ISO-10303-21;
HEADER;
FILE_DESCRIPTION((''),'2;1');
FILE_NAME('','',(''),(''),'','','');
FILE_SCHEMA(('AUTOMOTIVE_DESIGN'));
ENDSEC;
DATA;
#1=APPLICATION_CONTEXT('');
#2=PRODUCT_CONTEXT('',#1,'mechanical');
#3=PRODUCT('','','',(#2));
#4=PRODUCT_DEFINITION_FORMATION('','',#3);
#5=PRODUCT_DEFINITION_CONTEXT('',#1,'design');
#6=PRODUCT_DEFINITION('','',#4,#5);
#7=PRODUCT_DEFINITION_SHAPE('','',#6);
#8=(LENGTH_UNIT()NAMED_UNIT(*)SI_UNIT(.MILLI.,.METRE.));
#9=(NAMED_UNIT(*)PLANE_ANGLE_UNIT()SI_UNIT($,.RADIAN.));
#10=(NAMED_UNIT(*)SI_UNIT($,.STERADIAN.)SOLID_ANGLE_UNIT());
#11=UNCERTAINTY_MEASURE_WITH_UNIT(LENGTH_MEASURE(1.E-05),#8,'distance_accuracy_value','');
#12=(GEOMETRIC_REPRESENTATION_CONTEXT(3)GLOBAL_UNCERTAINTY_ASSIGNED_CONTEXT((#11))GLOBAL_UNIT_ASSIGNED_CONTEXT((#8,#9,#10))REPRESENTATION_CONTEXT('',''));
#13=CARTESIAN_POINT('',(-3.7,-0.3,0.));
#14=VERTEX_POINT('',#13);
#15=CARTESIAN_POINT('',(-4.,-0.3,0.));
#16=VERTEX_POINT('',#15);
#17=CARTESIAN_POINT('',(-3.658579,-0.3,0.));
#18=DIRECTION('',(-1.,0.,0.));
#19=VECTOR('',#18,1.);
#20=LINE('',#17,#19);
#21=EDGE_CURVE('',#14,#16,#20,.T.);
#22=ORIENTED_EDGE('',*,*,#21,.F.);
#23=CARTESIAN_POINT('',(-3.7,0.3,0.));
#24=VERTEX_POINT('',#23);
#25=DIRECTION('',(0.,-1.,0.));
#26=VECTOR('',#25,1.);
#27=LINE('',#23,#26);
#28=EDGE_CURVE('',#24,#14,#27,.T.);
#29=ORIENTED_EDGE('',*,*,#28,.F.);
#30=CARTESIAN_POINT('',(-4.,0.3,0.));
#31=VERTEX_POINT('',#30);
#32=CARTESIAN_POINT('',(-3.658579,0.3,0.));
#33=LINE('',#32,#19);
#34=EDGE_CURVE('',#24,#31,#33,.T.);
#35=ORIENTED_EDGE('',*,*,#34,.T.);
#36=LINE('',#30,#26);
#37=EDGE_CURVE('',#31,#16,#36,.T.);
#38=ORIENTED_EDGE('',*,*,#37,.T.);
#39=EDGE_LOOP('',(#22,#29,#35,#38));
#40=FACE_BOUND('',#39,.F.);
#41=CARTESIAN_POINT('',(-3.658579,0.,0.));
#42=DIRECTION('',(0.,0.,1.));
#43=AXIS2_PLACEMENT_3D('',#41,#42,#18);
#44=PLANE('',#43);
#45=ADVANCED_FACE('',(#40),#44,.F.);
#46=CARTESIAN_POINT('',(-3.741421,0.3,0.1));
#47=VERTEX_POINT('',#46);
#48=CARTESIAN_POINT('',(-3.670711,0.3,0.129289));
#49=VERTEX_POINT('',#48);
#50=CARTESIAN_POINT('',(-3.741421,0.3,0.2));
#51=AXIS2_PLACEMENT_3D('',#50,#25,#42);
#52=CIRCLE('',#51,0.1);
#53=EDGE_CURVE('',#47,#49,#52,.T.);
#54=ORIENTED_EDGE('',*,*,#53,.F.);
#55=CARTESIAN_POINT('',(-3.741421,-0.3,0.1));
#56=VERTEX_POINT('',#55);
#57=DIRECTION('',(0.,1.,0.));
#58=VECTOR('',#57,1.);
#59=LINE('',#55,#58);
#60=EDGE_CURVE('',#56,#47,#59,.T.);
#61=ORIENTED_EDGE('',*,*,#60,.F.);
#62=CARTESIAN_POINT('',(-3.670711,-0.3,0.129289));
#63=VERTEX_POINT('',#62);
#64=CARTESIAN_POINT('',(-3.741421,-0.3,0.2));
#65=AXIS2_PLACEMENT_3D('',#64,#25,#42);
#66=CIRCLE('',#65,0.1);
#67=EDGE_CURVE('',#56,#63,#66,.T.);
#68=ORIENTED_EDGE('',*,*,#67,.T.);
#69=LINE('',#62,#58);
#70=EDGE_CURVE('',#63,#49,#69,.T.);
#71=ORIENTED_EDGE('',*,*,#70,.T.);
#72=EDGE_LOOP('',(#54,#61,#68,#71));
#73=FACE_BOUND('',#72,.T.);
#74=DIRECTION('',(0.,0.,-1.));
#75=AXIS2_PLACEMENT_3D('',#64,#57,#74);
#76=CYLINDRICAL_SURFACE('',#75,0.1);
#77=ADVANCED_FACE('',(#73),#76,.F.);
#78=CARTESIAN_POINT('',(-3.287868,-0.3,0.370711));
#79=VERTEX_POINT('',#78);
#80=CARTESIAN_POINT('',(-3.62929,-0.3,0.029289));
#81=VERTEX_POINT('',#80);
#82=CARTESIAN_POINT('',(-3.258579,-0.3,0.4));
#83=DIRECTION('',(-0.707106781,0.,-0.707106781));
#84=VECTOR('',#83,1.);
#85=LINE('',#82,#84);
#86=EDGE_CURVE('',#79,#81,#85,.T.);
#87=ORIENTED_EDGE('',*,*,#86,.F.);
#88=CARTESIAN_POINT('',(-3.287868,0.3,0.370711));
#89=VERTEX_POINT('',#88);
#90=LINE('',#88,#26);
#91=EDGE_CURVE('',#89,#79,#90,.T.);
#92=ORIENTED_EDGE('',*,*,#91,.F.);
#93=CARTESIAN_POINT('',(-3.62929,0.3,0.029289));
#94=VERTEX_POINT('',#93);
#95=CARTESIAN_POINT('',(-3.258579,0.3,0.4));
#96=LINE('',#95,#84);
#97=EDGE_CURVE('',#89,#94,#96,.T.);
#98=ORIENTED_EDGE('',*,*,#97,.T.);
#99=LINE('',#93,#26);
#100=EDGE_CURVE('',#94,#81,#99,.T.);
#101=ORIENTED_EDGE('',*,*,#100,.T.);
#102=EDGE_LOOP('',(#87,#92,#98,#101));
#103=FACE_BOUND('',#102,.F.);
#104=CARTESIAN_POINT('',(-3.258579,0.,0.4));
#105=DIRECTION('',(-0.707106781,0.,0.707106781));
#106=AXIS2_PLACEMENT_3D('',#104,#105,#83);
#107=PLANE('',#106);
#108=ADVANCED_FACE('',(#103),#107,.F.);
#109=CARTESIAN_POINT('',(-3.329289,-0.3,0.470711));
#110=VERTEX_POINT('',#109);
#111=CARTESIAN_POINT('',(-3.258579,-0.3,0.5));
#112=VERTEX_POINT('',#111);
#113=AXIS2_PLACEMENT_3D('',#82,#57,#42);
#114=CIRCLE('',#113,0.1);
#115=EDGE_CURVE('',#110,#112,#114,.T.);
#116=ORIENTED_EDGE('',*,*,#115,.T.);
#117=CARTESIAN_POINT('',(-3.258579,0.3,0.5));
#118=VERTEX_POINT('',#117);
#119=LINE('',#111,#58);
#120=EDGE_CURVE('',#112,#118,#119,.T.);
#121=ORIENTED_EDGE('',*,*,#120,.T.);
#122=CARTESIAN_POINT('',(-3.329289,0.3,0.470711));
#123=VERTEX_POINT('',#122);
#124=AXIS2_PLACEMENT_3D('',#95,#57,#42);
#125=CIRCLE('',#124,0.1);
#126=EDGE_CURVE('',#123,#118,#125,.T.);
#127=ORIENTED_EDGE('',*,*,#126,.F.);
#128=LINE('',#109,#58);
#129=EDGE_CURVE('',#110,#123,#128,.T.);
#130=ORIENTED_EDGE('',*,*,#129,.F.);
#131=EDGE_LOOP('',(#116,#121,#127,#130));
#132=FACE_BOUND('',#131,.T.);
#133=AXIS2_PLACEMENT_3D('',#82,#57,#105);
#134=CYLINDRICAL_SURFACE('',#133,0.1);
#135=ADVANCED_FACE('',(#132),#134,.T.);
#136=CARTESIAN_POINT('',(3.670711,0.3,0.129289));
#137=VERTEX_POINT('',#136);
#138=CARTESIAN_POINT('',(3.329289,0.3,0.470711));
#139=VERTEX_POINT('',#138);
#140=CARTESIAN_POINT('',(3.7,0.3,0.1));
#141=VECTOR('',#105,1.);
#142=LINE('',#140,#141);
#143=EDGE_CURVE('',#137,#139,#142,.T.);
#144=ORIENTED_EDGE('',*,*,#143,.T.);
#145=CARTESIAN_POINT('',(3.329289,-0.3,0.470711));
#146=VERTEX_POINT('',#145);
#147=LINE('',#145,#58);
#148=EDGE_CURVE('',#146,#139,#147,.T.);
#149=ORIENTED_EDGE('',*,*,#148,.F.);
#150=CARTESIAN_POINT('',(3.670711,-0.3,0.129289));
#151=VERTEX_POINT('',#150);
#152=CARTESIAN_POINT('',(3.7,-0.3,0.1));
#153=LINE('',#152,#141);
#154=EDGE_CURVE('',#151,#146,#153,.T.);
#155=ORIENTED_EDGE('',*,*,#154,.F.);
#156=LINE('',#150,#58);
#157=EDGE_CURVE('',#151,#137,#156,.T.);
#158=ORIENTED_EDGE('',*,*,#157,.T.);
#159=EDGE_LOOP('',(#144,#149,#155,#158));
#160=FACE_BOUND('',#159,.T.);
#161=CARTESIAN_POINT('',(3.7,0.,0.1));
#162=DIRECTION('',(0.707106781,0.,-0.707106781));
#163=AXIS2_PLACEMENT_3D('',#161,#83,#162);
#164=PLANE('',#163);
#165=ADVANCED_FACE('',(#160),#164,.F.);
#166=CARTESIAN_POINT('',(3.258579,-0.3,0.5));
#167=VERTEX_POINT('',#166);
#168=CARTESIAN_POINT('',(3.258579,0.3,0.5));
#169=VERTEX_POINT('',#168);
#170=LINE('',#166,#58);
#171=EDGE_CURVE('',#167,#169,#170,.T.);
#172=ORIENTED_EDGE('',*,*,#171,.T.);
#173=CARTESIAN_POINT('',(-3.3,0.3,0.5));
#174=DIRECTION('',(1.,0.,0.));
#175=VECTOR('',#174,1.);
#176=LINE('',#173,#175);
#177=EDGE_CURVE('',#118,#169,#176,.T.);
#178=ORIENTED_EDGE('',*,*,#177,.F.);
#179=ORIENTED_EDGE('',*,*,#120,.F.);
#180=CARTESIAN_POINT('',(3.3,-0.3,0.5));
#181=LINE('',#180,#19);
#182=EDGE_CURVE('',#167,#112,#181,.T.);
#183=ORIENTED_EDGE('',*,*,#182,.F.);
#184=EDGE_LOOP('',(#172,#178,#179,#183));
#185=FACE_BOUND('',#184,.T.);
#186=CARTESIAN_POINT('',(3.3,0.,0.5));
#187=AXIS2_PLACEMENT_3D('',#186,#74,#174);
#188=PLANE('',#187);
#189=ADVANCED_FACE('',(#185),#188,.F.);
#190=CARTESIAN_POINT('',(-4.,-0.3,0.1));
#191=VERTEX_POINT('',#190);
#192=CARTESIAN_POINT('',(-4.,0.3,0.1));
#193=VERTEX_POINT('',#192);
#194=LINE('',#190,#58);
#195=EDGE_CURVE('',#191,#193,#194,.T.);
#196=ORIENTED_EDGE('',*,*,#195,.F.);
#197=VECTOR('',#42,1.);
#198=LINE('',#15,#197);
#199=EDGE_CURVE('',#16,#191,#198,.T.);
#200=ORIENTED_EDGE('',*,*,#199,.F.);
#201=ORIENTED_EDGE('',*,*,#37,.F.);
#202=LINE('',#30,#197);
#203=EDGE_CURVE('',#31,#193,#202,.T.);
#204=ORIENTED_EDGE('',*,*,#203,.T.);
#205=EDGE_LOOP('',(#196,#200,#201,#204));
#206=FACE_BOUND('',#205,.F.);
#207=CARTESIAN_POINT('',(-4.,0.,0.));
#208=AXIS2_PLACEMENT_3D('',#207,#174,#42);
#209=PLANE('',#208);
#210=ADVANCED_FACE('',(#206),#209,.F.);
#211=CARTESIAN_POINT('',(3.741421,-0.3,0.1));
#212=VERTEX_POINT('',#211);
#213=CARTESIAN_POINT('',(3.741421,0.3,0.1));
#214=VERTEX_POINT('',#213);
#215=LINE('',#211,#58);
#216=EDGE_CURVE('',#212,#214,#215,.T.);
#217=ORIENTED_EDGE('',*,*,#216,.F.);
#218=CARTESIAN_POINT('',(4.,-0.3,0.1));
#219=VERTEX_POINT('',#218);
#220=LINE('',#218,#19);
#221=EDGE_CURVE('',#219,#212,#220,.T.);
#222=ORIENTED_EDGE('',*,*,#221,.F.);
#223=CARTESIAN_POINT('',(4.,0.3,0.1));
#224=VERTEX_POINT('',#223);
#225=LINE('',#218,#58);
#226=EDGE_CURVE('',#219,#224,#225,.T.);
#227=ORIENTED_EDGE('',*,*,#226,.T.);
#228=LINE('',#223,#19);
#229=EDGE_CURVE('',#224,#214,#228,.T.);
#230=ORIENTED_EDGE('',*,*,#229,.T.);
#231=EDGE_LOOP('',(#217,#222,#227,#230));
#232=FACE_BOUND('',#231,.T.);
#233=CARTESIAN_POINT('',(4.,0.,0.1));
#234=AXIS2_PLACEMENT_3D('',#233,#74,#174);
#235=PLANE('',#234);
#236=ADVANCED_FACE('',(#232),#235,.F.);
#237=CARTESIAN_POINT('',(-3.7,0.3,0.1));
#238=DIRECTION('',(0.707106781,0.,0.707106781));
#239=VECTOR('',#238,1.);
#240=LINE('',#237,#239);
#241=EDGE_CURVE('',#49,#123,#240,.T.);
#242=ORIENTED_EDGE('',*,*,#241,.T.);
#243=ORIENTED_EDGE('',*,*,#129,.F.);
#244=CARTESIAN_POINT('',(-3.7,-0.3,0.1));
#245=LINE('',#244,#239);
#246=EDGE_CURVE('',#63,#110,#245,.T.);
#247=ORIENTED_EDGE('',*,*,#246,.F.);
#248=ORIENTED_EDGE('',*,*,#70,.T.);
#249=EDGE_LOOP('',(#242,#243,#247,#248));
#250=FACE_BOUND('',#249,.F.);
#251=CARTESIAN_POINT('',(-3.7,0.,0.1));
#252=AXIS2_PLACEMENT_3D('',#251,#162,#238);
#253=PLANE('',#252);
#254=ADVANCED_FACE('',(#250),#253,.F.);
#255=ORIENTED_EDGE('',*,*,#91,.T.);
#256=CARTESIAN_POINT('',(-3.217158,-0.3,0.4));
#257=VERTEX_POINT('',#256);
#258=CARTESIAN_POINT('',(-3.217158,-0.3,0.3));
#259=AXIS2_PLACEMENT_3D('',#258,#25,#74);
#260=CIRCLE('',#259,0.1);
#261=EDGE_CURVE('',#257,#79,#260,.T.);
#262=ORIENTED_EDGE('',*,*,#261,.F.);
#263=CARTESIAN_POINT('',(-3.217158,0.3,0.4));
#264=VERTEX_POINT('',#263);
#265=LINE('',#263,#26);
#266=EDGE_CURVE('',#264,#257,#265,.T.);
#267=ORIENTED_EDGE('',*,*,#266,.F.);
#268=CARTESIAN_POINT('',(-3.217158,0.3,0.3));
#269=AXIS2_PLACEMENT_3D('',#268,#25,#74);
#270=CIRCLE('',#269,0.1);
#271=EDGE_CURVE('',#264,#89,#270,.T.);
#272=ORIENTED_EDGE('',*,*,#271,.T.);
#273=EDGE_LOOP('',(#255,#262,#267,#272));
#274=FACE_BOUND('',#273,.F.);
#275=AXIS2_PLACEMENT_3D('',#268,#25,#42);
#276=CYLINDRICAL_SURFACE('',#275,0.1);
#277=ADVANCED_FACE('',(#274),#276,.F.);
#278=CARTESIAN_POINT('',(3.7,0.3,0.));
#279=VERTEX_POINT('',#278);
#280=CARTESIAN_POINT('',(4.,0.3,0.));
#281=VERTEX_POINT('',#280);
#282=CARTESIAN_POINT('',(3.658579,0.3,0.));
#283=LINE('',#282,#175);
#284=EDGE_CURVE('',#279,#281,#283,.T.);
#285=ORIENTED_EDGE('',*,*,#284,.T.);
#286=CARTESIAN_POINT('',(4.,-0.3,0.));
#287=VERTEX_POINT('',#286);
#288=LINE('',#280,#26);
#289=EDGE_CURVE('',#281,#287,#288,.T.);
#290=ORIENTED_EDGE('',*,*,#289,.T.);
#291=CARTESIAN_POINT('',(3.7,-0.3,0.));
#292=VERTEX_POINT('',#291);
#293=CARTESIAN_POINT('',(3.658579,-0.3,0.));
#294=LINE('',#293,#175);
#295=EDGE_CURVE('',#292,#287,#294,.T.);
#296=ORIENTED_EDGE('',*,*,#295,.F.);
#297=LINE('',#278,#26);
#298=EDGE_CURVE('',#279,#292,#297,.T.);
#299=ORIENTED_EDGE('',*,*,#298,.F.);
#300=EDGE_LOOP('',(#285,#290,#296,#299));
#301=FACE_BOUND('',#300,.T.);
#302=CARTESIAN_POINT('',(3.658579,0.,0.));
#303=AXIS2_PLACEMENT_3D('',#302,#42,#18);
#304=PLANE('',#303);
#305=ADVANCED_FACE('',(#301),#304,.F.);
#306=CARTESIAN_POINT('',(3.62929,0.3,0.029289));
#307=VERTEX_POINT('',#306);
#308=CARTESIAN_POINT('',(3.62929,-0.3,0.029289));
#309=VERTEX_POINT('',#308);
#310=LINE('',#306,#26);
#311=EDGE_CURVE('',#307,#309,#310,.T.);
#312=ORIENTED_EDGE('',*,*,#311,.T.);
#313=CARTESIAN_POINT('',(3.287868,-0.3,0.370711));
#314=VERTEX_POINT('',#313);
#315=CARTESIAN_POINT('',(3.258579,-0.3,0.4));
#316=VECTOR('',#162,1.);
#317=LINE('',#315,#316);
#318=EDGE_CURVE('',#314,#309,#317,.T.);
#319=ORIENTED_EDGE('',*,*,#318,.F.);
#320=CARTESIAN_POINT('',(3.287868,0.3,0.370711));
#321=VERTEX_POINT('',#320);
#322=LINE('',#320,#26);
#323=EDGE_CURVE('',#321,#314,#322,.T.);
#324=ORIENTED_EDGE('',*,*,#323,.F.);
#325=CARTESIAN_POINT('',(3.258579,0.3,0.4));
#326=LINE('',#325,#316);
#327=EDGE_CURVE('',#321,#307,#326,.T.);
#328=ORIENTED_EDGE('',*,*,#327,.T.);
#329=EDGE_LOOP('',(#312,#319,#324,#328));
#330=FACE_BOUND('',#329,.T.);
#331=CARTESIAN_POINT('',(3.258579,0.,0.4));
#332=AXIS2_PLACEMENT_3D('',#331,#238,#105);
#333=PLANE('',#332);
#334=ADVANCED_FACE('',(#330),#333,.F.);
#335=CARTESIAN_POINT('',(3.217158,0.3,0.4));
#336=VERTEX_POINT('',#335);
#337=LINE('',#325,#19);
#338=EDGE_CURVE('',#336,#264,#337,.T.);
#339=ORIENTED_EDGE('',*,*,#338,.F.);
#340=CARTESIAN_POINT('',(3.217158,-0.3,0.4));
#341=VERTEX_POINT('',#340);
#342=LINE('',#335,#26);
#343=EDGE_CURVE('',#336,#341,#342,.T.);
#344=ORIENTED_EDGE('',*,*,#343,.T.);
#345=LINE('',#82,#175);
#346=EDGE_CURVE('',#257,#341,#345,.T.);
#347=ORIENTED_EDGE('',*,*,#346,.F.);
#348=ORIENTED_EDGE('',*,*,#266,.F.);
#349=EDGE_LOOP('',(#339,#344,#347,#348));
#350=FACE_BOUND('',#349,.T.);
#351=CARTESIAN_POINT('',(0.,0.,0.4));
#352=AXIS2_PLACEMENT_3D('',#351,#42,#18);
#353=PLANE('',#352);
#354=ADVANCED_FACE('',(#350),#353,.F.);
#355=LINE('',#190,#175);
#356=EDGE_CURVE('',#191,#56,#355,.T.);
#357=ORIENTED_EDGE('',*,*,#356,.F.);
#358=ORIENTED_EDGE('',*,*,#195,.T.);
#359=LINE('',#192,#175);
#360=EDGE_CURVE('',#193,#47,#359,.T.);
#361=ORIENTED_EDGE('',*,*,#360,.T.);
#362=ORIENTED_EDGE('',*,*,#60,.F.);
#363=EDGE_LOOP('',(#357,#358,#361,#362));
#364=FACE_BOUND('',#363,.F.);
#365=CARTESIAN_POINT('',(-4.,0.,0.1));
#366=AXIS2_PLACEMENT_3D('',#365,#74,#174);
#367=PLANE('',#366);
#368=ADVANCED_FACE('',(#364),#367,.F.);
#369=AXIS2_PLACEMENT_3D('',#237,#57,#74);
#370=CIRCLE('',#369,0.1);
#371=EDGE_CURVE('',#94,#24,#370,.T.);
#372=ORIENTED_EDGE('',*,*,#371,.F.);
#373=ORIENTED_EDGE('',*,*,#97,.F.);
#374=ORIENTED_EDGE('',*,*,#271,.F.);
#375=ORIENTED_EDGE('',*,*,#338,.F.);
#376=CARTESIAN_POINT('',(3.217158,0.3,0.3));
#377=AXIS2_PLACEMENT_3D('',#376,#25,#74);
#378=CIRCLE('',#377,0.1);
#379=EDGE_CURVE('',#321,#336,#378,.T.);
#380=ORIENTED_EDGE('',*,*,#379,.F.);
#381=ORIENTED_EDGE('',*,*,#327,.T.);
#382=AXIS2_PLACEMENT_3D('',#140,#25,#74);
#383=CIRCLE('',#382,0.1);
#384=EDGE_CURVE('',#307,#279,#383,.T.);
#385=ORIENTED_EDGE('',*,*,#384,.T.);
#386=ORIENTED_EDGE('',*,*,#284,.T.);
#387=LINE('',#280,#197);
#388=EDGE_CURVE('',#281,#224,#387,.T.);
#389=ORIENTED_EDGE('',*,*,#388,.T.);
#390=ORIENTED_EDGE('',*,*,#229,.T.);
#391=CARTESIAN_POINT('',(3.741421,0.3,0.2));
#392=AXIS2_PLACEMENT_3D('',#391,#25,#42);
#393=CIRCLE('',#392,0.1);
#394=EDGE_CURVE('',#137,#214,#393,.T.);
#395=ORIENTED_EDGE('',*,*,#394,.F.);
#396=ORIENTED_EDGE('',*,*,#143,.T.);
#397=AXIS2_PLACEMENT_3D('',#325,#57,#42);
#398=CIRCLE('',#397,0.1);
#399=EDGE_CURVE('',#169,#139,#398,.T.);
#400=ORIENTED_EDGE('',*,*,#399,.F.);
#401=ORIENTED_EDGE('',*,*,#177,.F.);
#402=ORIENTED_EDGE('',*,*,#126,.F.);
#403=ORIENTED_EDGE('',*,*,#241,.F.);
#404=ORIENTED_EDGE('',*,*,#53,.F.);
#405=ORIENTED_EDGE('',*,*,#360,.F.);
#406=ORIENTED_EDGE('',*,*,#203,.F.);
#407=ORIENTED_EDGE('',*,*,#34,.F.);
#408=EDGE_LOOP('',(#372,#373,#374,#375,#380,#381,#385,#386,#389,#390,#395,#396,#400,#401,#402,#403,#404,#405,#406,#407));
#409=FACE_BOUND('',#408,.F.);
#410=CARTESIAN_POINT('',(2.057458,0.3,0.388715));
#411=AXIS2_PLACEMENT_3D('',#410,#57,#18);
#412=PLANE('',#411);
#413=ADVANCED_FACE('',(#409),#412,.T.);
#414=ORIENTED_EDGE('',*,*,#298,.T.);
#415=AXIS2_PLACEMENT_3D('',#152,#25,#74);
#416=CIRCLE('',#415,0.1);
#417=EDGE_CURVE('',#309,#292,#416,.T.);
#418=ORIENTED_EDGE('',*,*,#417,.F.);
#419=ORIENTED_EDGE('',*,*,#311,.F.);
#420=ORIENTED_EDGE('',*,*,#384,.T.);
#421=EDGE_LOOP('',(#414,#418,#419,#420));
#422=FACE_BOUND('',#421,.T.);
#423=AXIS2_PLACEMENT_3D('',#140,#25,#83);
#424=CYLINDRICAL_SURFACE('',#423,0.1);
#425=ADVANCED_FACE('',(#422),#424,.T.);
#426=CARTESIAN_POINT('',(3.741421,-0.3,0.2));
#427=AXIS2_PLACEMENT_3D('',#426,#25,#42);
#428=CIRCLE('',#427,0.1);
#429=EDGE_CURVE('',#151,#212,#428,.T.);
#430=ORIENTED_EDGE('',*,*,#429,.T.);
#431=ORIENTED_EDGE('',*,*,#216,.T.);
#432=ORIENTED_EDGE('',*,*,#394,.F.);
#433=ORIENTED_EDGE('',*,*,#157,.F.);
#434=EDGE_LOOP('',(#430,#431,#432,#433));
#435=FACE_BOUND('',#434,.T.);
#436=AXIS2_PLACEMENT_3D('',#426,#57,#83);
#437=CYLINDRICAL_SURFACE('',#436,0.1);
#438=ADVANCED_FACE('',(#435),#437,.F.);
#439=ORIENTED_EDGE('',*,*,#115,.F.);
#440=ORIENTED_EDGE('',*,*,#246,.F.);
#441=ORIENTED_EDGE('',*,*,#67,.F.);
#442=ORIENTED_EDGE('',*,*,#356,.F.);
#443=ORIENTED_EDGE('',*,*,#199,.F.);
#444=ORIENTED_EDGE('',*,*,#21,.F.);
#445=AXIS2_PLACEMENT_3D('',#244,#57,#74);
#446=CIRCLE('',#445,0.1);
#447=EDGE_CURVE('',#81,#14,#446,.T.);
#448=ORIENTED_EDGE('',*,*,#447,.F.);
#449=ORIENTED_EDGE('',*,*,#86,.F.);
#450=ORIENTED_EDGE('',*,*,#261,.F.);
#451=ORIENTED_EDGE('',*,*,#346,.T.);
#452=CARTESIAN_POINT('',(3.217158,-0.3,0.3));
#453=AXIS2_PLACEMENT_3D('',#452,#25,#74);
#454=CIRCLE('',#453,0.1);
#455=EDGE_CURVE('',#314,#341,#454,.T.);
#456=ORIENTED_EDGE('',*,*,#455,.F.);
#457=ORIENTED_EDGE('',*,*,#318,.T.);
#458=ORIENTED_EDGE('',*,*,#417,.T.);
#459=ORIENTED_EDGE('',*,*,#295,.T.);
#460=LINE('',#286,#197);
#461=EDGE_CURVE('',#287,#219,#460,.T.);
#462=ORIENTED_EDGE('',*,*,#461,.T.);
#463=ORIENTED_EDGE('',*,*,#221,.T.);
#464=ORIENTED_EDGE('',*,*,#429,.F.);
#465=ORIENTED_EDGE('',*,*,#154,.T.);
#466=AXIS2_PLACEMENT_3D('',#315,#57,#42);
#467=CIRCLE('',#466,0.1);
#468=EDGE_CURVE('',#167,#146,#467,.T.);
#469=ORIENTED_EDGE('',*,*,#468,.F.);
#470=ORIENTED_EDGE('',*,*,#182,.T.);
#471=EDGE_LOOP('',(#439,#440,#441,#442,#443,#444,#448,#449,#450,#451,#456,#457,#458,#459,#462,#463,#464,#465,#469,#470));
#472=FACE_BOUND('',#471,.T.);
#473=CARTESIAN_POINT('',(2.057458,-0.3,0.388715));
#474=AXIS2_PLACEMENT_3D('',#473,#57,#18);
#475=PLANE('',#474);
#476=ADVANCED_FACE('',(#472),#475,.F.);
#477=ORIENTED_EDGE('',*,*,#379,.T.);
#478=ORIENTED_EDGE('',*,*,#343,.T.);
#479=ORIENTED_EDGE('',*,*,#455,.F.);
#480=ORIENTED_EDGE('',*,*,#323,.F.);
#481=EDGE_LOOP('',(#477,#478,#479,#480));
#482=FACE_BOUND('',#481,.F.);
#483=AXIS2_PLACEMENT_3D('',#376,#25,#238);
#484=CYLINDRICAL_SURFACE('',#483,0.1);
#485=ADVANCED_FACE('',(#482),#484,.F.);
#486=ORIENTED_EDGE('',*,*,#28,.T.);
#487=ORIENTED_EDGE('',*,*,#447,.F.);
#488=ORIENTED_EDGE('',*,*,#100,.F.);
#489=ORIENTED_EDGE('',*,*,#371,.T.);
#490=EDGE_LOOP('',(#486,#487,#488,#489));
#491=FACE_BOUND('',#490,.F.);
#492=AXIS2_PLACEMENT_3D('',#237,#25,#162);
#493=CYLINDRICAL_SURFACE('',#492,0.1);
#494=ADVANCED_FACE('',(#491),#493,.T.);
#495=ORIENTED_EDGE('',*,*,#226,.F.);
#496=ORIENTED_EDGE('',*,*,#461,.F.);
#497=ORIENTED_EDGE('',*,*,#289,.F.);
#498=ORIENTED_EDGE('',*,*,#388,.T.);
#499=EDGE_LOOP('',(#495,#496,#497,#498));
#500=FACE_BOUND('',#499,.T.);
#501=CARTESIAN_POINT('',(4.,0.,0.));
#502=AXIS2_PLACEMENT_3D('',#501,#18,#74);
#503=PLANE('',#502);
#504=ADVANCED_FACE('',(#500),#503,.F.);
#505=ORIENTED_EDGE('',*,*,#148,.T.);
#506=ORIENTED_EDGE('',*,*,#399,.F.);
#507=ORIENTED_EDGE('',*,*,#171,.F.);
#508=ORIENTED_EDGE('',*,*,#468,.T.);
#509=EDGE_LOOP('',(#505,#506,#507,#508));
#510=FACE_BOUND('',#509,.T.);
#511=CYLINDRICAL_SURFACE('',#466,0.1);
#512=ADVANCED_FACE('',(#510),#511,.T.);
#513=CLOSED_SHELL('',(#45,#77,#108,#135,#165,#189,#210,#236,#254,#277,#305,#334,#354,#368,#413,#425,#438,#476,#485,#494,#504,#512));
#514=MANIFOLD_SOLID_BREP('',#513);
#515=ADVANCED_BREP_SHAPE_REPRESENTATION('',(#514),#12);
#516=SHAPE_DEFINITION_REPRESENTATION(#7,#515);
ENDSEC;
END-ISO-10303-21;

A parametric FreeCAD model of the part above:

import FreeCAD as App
import Part
import Sketcher

V = App.Vector
Q = App.Units.Quantity


def edges_at(feature, points):
    """Names of the edges that pass closest to the given points."""
    edges = feature.Shape.Edges
    near = lambda p: min(range(len(edges)), key=lambda i: edges[i].distToShape(Part.Vertex(*p))[0])
    return sorted({f"Edge{near(p) + 1}" for p in points})


def add_polygon(sketch, points):
    """Adds a closed chain of lines whose ends are joined by coincident constraints."""
    first, n = sketch.GeometryCount, len(points)
    for a, b in zip(points, points[1:] + points[:1]):
        sketch.addGeometry(Part.LineSegment(App.Vector(*a, 0), App.Vector(*b, 0)), False)
    for i in range(n):
        sketch.addConstraint(Sketcher.Constraint("Coincident", first + i, 2, first + (i + 1) % n, 1))

doc = App.newDocument("Part")
body = doc.addObject("PartDesign::Body", "Body")

sketch1 = body.newObject("Sketcher::SketchObject", "Sketch")
sketch1.AttachmentSupport = (doc.getObject("XZ_Plane"), [""])
sketch1.MapMode = "FlatFace"
add_polygon(sketch1, [(-4, 0.1), (-4, 0), (-3.658579, 0), (-3.258579, 0.4), (0, 0.4), (0, 0.5), (-3.3, 0.5), (-3.7, 0.1)])
sketch1.addConstraint([
    Sketcher.Constraint("Vertical", 0),
    Sketcher.Constraint("Horizontal", 1),
    Sketcher.Constraint("Horizontal", 3),
    Sketcher.Constraint("Vertical", 4),
    Sketcher.Constraint("Horizontal", 5),
    Sketcher.Constraint("Horizontal", 7),
    Sketcher.Constraint("PointOnObject", 0, 2, -1),
    Sketcher.Constraint("PointOnObject", 3, 2, -2),
    Sketcher.Constraint("Parallel", 2, 6),
    Sketcher.Constraint("Equal", 0, 4),
    Sketcher.Constraint("Angle", 2, Q("45 deg")),
    Sketcher.Constraint("DistanceX", 5, 2, 5, 1, Q("3.3 mm")),
    Sketcher.Constraint("DistanceX", 7, 2, 7, 1, Q("0.3 mm")),
    Sketcher.Constraint("DistanceY", 0, 2, 0, 1, Q("0.1 mm")),
    Sketcher.Constraint("DistanceX", 0, 2, -1, 1, Q("4 mm")),
    Sketcher.Constraint("DistanceX", 1, 1, 1, 2, Q("0.341421 mm")),
])
pad1 = body.newObject("PartDesign::Pad", "Pad")
pad1.Profile = sketch1
pad1.Length = 0.6
pad1.Midplane = True
doc.recompute()

mirrored = body.newObject("PartDesign::Mirrored", "Mirrored")
mirrored.Originals = [pad1]
mirrored.MirrorPlane = (doc.getObject("YZ_Plane"), [""])
body.Tip = mirrored
doc.recompute()

fillet = body.newObject("PartDesign::Fillet", "Fillet")
fillet.Base = (mirrored, edges_at(mirrored, [
    (-3.7, 0, 0.1),
    (-3.3, 0, 0.5),
    (-3.659, 0, 0),
    (-3.259, 0, 0.4),
    (3.259, 0, 0.4),
    (3.659, 0, 0),
    (3.3, 0, 0.5),
    (3.7, 0, 0.1),
]))
fillet.Radius = 0.1

doc.recompute()
